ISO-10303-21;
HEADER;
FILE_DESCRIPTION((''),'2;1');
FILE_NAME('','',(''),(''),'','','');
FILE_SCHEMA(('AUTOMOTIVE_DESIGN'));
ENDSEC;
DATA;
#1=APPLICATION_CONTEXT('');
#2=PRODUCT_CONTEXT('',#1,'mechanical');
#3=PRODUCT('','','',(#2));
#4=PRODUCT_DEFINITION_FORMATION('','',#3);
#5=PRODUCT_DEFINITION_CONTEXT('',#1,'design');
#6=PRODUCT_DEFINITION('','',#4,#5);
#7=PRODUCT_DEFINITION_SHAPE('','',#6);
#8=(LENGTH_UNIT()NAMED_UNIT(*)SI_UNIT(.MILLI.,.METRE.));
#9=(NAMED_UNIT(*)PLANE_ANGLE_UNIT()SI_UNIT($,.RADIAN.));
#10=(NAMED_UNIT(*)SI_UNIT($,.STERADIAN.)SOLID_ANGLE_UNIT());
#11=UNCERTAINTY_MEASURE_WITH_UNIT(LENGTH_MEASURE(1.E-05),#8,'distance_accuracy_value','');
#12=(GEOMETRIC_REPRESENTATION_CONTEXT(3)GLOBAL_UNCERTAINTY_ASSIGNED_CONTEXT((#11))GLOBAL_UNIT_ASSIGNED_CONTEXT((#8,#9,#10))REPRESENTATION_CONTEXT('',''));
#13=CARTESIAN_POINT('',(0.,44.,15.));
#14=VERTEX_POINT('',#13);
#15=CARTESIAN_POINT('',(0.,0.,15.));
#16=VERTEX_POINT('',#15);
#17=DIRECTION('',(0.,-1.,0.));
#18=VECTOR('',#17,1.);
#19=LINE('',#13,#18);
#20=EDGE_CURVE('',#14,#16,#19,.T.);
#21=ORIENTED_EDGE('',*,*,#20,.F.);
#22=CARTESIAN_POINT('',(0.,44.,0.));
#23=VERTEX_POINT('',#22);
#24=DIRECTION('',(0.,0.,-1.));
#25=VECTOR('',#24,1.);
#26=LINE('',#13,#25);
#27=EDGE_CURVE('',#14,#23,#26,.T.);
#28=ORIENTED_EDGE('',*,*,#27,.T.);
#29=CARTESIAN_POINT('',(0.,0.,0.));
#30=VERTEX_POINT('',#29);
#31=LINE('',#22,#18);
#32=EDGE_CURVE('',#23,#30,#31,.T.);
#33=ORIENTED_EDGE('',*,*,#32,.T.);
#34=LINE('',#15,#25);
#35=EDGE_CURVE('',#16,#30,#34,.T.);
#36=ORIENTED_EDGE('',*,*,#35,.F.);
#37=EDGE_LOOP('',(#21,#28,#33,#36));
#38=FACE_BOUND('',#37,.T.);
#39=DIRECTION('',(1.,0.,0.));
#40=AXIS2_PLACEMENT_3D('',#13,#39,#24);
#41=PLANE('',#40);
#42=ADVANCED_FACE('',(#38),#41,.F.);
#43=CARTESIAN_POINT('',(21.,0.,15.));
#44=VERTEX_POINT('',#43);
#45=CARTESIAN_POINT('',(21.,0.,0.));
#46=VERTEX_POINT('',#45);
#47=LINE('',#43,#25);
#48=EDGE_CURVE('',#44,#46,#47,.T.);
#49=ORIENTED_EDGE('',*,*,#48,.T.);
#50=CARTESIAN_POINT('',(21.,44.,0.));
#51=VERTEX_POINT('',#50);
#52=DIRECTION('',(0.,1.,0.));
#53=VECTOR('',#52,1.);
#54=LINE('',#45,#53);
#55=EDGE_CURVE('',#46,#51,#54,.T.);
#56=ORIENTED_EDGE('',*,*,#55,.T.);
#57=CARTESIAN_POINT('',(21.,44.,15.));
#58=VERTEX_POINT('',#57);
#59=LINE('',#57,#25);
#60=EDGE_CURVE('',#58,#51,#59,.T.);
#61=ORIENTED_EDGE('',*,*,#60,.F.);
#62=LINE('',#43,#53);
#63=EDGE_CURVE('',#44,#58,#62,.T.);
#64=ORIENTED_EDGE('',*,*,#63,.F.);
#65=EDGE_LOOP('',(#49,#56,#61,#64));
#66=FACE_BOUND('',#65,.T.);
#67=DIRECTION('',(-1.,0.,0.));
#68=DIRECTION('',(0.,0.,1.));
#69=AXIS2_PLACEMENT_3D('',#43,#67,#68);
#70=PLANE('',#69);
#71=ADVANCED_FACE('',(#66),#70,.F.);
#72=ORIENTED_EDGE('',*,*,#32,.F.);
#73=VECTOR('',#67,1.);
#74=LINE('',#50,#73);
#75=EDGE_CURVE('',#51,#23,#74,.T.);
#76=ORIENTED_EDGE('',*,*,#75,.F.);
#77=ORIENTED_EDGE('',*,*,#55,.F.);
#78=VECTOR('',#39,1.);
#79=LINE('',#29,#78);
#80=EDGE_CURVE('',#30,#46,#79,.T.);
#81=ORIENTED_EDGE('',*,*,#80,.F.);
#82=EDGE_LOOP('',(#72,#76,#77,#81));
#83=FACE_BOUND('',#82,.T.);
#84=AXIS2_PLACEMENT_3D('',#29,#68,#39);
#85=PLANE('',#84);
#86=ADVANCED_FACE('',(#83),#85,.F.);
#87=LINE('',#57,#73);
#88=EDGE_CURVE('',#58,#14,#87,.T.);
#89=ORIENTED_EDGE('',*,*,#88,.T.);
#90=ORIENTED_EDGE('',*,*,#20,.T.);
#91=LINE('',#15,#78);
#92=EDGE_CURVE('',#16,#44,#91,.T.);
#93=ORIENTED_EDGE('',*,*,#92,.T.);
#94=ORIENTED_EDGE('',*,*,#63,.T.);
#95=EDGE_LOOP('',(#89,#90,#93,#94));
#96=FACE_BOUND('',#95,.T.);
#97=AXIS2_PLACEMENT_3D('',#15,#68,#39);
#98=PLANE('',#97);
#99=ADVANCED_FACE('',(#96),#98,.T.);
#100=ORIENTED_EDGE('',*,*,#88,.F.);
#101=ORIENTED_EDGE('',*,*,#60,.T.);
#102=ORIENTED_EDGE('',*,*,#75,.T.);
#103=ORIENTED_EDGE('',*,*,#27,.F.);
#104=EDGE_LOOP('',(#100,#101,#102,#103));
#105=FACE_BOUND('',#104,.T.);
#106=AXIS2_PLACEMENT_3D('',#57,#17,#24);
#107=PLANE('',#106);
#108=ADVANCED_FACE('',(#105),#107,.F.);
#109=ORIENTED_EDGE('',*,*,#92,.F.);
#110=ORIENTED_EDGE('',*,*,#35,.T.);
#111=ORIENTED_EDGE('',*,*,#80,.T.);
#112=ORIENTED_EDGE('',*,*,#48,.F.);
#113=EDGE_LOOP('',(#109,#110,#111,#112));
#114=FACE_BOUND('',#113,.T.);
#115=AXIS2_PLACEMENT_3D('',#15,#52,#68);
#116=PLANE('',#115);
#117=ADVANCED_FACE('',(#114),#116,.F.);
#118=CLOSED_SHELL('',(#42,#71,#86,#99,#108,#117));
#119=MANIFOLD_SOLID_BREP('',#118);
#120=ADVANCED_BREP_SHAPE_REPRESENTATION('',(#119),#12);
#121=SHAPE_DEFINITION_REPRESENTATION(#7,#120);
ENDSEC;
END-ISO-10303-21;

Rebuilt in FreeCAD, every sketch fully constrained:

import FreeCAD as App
import Part
import Sketcher
from FreeCAD import Vector
Q = App.Units.Quantity


def add_polygon(sketch, points):
    """Adds a closed chain of lines whose ends are joined by coincident constraints."""
    first, n = sketch.GeometryCount, len(points)
    for a, b in zip(points, points[1:] + points[:1]):
        sketch.addGeometry(Part.LineSegment(App.Vector(*a, 0), App.Vector(*b, 0)), False)
    for i in range(n):
        sketch.addConstraint(Sketcher.Constraint("Coincident", first + i, 2, first + (i + 1) % n, 1))

doc = App.newDocument("Part")
body = doc.addObject("PartDesign::Body", "Body")

sketch1 = body.newObject("Sketcher::SketchObject", "Sketch")
sketch1.AttachmentSupport = (doc.getObject("XY_Plane"), [""])
sketch1.MapMode = "FlatFace"
add_polygon(sketch1, [(0, 44), (0, 0), (21, 0), (21, 44)])
sketch1.addConstraint([
    Sketcher.Constraint("Vertical", 0),
    Sketcher.Constraint("Horizontal", 1),
    Sketcher.Constraint("Vertical", 2),
    Sketcher.Constraint("Horizontal", 3),
    Sketcher.Constraint("Coincident", 0, 2, -1, 1),
    Sketcher.Constraint("DistanceX", 1, 1, 1, 2, Q("21 mm")),
    Sketcher.Constraint("DistanceY", 0, 2, 0, 1, Q("44 mm")),
])
pad1 = body.newObject("PartDesign::Pad", "Pad")
pad1.Profile = sketch1
pad1.Length = 15

doc.recompute()
